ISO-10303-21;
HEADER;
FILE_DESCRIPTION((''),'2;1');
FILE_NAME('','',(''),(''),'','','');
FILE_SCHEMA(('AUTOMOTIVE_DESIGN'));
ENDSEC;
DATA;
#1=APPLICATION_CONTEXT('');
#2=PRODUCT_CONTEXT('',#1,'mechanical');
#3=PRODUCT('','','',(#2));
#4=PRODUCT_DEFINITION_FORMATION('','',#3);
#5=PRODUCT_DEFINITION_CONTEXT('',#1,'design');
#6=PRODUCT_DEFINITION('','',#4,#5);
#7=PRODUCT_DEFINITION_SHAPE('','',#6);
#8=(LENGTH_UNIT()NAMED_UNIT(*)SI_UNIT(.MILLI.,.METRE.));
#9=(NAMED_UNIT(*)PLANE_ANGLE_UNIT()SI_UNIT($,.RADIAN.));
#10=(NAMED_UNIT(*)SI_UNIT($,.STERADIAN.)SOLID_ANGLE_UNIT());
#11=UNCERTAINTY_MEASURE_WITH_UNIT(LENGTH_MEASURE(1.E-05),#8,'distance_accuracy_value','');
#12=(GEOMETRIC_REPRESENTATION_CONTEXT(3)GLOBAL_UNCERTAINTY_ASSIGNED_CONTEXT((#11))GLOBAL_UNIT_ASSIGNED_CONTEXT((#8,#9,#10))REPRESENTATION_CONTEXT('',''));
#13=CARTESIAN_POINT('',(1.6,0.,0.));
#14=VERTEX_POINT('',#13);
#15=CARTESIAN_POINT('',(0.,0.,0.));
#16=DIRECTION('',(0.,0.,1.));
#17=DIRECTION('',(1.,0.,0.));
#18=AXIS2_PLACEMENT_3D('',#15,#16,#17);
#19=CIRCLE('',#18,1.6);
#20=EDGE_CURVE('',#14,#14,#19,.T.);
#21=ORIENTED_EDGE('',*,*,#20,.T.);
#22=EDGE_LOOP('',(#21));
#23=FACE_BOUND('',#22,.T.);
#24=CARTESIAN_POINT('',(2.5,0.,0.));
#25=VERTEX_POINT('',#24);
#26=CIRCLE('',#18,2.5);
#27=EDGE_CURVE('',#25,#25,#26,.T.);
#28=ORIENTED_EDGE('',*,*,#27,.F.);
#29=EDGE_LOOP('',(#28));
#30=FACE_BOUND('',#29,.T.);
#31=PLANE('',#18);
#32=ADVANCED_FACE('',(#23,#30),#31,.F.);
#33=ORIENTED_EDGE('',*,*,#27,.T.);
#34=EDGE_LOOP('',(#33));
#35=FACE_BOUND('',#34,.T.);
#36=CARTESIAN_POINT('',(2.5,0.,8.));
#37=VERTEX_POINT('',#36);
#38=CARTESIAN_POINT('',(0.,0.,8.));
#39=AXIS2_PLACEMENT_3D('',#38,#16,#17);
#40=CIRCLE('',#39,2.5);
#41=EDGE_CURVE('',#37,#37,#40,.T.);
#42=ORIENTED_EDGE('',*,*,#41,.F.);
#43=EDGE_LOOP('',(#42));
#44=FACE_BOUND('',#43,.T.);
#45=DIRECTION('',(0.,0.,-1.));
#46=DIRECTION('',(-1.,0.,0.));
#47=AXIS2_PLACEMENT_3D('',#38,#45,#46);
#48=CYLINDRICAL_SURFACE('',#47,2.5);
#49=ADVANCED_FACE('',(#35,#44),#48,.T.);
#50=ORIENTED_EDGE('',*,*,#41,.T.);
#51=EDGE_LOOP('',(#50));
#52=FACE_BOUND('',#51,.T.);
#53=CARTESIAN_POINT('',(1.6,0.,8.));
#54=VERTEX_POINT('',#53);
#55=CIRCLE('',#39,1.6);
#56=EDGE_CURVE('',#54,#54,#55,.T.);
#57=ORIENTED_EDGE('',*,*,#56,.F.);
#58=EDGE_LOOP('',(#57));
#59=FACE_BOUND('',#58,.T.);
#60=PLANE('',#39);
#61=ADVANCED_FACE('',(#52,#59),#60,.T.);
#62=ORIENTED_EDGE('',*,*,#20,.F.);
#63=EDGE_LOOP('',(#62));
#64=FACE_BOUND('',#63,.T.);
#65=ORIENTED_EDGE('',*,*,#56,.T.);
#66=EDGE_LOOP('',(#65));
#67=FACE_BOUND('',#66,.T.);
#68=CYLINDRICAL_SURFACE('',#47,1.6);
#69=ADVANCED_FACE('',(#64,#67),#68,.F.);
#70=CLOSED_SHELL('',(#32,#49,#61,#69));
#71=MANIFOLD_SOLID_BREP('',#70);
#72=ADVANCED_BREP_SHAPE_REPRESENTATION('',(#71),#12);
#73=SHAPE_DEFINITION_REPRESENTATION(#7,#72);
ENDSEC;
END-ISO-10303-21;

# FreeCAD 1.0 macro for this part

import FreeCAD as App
import Part
import Sketcher
Q = App.Units.Quantity

doc = App.newDocument("Part")
params = doc.addObject("Spreadsheet::Sheet", "Params")
for row, (alias, value) in enumerate([
    ("sketch1_diameter", "5 mm"),
    ("sketch1_diameter2", "3.2 mm"),
    ("pad1_length", "8 mm"),
], start=1):
    params.set(f"A{row}", alias)
    params.set(f"B{row}", "=" + value)
    params.setAlias(f"B{row}", alias)

body = doc.addObject("PartDesign::Body", "Body")

# Sketch on XY plane
sketch1 = body.newObject("Sketcher::SketchObject", "Sketch")
sketch1.AttachmentSupport = (doc.getObject("XY_Plane"), [""])
sketch1.MapMode = "FlatFace"
sketch1.addGeometry(Part.Circle(App.Vector(0, 0, 0), App.Vector(0, 0, 1), 2.5), False)
sketch1.addGeometry(Part.Circle(App.Vector(0, 0, 0), App.Vector(0, 0, 1), 1.6), False)
sketch1.addConstraint(Sketcher.Constraint("Coincident", 0, 3, -1, 1))
sketch1.addConstraint(Sketcher.Constraint("Coincident", 1, 3, -1, 1))
sketch1.addConstraint(Sketcher.Constraint("Diameter", 0, Q("5 mm")))
sketch1.addConstraint(Sketcher.Constraint("Diameter", 1, Q("3.2 mm")))
sketch1.setExpression("Constraints[2]", "Params.sketch1_diameter")
sketch1.setExpression("Constraints[3]", "Params.sketch1_diameter2")
pad1 = body.newObject("PartDesign::Pad", "Pad")
pad1.Profile = sketch1
pad1.setExpression("Length", "Params.pad1_length")

doc.recompute()
